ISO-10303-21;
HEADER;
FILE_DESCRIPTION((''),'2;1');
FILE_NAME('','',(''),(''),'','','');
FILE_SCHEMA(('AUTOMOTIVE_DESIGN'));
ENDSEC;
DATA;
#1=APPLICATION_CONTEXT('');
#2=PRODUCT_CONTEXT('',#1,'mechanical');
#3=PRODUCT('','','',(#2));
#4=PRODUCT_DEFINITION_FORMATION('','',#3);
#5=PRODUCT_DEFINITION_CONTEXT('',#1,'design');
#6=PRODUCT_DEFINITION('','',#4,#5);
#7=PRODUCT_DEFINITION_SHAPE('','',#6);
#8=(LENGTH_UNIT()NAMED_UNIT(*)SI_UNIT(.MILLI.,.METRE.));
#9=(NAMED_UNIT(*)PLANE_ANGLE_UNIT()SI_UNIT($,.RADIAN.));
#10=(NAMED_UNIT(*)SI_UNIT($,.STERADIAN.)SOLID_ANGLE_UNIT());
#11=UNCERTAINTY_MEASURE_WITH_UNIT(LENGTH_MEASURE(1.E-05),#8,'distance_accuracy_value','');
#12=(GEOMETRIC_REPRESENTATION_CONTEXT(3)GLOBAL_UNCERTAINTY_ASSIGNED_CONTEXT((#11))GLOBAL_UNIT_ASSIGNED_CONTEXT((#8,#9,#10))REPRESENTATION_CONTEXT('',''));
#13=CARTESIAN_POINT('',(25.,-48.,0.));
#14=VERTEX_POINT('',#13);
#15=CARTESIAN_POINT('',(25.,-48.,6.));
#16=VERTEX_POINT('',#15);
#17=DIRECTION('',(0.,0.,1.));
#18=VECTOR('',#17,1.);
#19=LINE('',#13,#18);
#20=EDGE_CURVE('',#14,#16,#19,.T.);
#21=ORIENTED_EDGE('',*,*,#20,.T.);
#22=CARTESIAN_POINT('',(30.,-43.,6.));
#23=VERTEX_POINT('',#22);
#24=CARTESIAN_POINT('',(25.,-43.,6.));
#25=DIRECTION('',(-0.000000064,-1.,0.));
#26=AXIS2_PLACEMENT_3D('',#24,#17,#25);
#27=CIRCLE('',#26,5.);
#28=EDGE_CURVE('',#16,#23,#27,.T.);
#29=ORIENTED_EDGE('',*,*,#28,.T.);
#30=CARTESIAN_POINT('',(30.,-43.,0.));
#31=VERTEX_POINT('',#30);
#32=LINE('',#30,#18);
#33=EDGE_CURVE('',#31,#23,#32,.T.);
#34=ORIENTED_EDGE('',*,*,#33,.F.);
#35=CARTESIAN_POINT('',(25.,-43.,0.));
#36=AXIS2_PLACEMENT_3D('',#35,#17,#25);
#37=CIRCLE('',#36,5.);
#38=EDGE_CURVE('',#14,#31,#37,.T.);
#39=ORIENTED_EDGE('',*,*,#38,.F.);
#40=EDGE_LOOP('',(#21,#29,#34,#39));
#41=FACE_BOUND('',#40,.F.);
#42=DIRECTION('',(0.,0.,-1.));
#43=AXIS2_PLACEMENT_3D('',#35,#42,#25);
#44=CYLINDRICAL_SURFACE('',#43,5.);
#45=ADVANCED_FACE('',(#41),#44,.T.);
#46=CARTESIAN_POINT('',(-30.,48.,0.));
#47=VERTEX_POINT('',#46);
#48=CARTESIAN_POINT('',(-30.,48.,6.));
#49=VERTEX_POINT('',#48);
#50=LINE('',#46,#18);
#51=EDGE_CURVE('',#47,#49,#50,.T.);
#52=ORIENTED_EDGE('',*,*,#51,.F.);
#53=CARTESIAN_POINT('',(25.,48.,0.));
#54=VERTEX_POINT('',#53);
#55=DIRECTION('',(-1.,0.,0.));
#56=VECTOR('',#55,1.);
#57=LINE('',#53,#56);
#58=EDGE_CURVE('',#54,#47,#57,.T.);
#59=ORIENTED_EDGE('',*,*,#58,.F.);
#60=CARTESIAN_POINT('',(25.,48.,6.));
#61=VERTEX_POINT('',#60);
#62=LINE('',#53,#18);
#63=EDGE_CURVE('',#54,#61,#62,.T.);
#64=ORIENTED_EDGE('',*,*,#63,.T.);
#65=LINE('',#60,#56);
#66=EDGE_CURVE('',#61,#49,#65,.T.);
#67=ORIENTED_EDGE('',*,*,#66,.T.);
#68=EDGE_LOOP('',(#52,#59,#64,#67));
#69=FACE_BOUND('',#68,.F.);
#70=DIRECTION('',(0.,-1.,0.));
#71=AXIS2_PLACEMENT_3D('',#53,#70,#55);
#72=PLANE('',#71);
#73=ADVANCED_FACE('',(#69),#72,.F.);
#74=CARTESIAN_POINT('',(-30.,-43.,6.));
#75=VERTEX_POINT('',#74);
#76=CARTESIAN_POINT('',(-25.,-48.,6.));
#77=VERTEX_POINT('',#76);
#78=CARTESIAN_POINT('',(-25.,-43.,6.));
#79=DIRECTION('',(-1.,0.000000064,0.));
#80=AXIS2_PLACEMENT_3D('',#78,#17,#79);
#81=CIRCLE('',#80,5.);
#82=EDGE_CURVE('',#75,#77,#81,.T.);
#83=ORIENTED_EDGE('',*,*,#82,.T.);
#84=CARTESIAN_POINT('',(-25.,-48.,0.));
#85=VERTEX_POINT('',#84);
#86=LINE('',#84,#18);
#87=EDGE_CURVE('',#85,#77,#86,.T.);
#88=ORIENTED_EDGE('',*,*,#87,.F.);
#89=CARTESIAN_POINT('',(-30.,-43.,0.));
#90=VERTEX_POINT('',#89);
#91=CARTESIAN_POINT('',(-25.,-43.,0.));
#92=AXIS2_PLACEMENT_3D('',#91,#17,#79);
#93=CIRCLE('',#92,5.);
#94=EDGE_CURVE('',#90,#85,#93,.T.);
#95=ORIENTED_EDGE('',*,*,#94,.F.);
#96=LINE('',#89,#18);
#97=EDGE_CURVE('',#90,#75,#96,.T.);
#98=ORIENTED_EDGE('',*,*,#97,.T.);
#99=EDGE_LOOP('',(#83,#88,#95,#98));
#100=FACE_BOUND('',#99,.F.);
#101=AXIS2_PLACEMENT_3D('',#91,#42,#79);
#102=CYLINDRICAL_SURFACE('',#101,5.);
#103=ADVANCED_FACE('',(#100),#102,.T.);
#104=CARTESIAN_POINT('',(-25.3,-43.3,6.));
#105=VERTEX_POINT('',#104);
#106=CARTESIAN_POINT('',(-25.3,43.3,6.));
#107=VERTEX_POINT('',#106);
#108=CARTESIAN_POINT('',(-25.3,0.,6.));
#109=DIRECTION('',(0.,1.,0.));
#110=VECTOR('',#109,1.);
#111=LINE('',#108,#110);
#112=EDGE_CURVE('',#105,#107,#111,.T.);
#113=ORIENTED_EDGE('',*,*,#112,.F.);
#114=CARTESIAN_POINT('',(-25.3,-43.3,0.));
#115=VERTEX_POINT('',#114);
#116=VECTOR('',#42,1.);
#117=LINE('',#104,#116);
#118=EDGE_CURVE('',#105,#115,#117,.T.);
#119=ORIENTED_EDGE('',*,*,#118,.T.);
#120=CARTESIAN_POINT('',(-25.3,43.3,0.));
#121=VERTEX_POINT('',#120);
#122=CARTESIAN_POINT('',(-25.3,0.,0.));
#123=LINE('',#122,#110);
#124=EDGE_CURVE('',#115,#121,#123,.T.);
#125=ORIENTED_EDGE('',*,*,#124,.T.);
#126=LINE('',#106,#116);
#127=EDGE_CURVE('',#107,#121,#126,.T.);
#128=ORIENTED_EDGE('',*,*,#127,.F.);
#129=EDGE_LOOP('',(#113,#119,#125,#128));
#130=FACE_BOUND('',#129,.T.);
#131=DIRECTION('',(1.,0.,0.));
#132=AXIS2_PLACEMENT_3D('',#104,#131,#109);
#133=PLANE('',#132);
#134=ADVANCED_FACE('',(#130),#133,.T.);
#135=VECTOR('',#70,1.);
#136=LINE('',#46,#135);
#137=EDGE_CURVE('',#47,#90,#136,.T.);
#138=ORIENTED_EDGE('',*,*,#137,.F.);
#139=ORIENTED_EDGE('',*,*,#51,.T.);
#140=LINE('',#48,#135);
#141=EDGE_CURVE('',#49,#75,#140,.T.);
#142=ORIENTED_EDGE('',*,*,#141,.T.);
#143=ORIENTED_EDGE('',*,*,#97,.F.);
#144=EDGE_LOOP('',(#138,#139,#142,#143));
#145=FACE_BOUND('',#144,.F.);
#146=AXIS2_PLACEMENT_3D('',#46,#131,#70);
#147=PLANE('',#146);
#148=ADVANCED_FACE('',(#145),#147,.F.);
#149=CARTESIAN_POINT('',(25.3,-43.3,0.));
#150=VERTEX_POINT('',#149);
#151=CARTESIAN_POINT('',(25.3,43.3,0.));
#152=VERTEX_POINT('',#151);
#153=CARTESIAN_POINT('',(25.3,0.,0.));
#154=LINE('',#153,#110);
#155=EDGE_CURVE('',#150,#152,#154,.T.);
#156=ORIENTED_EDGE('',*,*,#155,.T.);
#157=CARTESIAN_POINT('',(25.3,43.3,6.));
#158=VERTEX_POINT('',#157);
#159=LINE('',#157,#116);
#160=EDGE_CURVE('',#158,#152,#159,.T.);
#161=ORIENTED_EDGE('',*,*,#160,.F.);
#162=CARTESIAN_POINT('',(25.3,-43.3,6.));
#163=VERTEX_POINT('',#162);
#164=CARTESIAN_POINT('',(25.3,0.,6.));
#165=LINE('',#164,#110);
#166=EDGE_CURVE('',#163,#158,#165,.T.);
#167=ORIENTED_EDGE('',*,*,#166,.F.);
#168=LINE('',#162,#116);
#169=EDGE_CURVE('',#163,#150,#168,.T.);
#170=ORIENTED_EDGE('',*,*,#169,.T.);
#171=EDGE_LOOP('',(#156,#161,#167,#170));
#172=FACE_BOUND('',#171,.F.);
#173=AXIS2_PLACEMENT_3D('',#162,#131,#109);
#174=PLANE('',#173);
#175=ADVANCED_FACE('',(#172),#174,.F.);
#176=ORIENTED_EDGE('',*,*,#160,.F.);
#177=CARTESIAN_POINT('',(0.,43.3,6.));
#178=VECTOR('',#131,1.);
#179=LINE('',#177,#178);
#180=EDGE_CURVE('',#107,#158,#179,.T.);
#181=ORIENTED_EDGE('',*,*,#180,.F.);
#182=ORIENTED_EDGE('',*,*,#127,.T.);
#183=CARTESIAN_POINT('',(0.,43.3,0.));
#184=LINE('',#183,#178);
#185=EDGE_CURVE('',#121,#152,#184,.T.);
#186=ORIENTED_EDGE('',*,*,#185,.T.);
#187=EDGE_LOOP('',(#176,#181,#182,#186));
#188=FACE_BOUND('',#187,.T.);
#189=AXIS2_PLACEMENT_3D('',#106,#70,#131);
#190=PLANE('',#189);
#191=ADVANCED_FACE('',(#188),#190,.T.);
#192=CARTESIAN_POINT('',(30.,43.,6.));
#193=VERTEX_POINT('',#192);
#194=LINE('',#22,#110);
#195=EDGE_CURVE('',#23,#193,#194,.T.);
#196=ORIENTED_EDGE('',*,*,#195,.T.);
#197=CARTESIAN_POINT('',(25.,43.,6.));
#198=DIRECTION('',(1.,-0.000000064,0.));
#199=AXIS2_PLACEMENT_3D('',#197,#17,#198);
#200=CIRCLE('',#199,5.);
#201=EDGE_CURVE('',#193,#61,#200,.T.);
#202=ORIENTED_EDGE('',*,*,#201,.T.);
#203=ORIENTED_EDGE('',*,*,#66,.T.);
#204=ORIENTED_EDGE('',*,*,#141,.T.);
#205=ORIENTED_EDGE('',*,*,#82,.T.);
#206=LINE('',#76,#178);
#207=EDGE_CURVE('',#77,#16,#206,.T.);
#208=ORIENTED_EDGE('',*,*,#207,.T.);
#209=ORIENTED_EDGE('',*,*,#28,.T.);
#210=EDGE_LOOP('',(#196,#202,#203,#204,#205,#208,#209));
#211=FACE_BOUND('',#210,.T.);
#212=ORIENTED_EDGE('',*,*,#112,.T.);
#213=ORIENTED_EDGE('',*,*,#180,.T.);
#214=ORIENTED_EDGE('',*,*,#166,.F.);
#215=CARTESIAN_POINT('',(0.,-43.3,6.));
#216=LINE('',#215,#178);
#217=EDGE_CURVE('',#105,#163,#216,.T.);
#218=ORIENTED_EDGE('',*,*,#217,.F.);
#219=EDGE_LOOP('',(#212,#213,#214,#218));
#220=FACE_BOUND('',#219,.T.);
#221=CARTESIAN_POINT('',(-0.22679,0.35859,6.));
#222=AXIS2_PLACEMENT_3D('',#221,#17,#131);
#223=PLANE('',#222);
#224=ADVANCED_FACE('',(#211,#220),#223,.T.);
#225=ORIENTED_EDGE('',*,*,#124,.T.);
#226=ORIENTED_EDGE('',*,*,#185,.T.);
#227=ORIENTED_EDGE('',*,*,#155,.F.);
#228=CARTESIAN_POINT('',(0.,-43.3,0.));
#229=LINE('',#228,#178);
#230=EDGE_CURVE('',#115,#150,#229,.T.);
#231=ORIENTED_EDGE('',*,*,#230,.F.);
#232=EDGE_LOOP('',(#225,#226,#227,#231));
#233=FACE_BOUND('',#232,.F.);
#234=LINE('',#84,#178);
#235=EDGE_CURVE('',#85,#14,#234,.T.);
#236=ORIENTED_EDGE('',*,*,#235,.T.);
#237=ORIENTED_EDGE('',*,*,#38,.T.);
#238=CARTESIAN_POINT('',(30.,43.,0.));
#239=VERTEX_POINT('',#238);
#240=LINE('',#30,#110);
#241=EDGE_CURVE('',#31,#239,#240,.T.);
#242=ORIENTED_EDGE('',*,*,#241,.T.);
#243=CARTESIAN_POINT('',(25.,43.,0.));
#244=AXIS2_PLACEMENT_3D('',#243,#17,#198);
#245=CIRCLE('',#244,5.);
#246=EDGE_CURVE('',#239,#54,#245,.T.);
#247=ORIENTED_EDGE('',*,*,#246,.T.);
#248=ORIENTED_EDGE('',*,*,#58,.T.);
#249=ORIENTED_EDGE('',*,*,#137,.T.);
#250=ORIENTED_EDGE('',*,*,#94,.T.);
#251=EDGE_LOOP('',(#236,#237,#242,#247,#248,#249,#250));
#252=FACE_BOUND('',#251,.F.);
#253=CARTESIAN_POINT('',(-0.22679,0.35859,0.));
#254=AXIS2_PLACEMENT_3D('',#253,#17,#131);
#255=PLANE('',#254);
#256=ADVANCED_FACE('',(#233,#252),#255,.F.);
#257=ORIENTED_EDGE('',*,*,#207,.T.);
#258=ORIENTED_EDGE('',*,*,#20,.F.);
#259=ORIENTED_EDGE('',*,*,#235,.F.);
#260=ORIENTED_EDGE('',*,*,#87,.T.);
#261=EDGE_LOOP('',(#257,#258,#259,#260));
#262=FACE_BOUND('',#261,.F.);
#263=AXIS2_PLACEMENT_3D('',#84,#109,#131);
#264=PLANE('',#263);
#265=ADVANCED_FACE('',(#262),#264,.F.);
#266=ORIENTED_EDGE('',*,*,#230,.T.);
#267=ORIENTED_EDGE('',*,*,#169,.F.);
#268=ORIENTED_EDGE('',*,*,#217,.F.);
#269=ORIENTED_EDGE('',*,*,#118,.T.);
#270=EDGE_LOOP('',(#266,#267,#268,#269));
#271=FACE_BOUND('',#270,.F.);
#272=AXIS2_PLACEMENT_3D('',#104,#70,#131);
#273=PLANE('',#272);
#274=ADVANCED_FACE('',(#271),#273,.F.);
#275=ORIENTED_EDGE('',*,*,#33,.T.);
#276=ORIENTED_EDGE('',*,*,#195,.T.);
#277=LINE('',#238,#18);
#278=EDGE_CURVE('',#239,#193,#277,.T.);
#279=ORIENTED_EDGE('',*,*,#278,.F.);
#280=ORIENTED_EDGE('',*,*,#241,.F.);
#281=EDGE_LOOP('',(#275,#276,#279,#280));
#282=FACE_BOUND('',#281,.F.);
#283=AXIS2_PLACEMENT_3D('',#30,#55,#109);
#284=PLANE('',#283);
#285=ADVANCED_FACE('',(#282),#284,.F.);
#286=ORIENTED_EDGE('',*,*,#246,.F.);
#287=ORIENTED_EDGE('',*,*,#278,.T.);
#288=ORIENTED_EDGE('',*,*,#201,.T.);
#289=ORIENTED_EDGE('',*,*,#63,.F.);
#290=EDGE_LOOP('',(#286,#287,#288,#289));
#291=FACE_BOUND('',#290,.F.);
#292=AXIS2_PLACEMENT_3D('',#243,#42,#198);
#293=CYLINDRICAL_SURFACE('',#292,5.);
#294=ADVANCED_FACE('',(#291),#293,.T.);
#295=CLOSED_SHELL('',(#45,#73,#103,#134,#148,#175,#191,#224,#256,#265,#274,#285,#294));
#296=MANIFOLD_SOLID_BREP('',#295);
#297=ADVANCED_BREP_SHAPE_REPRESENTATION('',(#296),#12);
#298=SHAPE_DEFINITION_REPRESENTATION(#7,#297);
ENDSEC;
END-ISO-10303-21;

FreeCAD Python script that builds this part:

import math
import FreeCAD as App
import Part
import Sketcher
from FreeCAD import Vector

doc = App.newDocument("Part")
params = doc.addObject("Spreadsheet::Sheet", "Params")
for row, (alias, value) in enumerate([
    ("sketch1_diameter", "3 mm"),
    ("sketch1_radius", "5 mm"),
    ("sketch1_width", "50 mm"),
    ("sketch1_height", "86 mm"),
    ("pad1_length", "6 mm"),
    ("sketch2_width", "50.6 mm"),
    ("sketch2_height", "86.6 mm"),
    ("pocket1_length", "6 mm"),
], start=1):
    params.set(f"A{row}", alias)
    params.set(f"B{row}", "=" + value)
    params.setAlias(f"B{row}", alias)

body = doc.addObject("PartDesign::Body", "Body")

# Sketch on XY plane
sketch1 = body.newObject("Sketcher::SketchObject", "Sketch")
sketch1.AttachmentSupport = (doc.getObject("XY_Plane"), [""])
sketch1.MapMode = "FlatFace"
sketch1.addGeometry([
    Part.LineSegment(Vector(-25, -48, 0), Vector(25, -48, 0)),  # 0
    Part.ArcOfCircle(Part.Circle(Vector(25, -43, 0), Vector(0, 0, 1), 5), math.radians(-90.000004), math.radians(0.000004)),  # 1
    Part.LineSegment(Vector(30, -43, 0), Vector(30, 43, 0)),  # 2
    Part.ArcOfCircle(Part.Circle(Vector(25, 43, 0), Vector(0, 0, 1), 5), math.radians(-0.000004), math.radians(90.000004)),  # 3
    Part.LineSegment(Vector(25, 48, 0), Vector(-30, 48, 0)),  # 4
    Part.LineSegment(Vector(-30, 48, 0), Vector(-30, -43, 0)),  # 5
    Part.ArcOfCircle(Part.Circle(Vector(-25, -43, 0), Vector(0, 0, 1), 5), math.radians(179.999996), math.radians(270.000004)),  # 6
    Part.Circle(Vector(-22, -36.08, 0), Vector(0, 0, 1), 1.5),  # 7
    Part.Circle(Vector(22, -36.08, 0), Vector(0, 0, 1), 1.5),  # 8
    Part.Circle(Vector(-22, 40, 0), Vector(0, 0, 1), 1.5),  # 9
    Part.Circle(Vector(22, 40, 0), Vector(0, 0, 1), 1.5),  # 10
], False)
sketch1.addConstraint([
    Sketcher.Constraint("Tangent", 0, 2, 1, 1),
    Sketcher.Constraint("Tangent", 1, 2, 2, 1),
    Sketcher.Constraint("Tangent", 2, 2, 3, 1),
    Sketcher.Constraint("Tangent", 3, 2, 4, 1),
    Sketcher.Constraint("Coincident", 4, 2, 5, 1),
    Sketcher.Constraint("Tangent", 5, 2, 6, 1),
    Sketcher.Constraint("Tangent", 6, 2, 0, 1),
    Sketcher.Constraint("Horizontal", 0),
    Sketcher.Constraint("Vertical", 2),
    Sketcher.Constraint("Horizontal", 4),
    Sketcher.Constraint("Vertical", 5),
    Sketcher.Constraint("Equal", 1, 3),
    Sketcher.Constraint("Equal", 3, 6),
    Sketcher.Constraint("Equal", 7, 8),
    Sketcher.Constraint("Equal", 8, 9),
    Sketcher.Constraint("Equal", 9, 10),
    Sketcher.Constraint("Symmetric", 3, 3, 6, 3, -1, 1),
    Sketcher.Constraint("Symmetric", 7, 3, 8, 3, -2),
    Sketcher.Constraint("Symmetric", 9, 3, 10, 3, -2),
    Sketcher.Constraint("Vertical", 7, 3, 9, 3),
    Sketcher.Constraint("Diameter", 7, 3.0),
    Sketcher.Constraint("Radius", 1, 5.0),
    Sketcher.Constraint("DistanceX", 0, 1, 0, 2, 50.0),
    Sketcher.Constraint("DistanceY", 2, 1, 2, 2, 86.0),
    Sketcher.Constraint("DistanceX", 7, 3, -1, 1, 22.0),
    Sketcher.Constraint("DistanceY", -1, 1, 9, 3, 40.0),
    Sketcher.Constraint("DistanceY", 7, 3, -1, 1, 36.08),
])
sketch1.setExpression("Constraints[20]", "Params.sketch1_diameter")
sketch1.setExpression("Constraints[21]", "Params.sketch1_radius")
sketch1.setExpression("Constraints[22]", "Params.sketch1_width")
sketch1.setExpression("Constraints[23]", "Params.sketch1_height")
pad1 = body.newObject("PartDesign::Pad", "Pad")
pad1.Profile = sketch1
pad1.setExpression("Length", "Params.pad1_length")

# Sketch on XY plane
sketch2 = body.newObject("Sketcher::SketchObject", "Sketch001")
sketch2.AttachmentSupport = (doc.getObject("XY_Plane"), [""])
sketch2.MapMode = "FlatFace"
sketch2.AttachmentOffset = App.Placement(Vector(0, 0, 6), App.Rotation())
sketch2.addGeometry([
    Part.LineSegment(Vector(-25.3, 43.3, 0), Vector(-25.3, -43.3, 0)),
    Part.LineSegment(Vector(-25.3, -43.3, 0), Vector(25.3, -43.3, 0)),
    Part.LineSegment(Vector(25.3, -43.3, 0), Vector(25.3, 43.3, 0)),
    Part.LineSegment(Vector(25.3, 43.3, 0), Vector(-25.3, 43.3, 0)),
], False)
sketch2.addConstraint([
    Sketcher.Constraint("Coincident", 0, 2, 1, 1),
    Sketcher.Constraint("Coincident", 1, 2, 2, 1),
    Sketcher.Constraint("Coincident", 2, 2, 3, 1),
    Sketcher.Constraint("Coincident", 3, 2, 0, 1),
    Sketcher.Constraint("Vertical", 0),
    Sketcher.Constraint("Horizontal", 1),
    Sketcher.Constraint("Vertical", 2),
    Sketcher.Constraint("Horizontal", 3),
    Sketcher.Constraint("Symmetric", 0, 2, 2, 2, -1, 1),
    Sketcher.Constraint("DistanceX", 1, 1, 1, 2, 50.6),
    Sketcher.Constraint("DistanceY", 0, 2, 0, 1, 86.6),
])
sketch2.setExpression("Constraints[9]", "Params.sketch2_width")
sketch2.setExpression("Constraints[10]", "Params.sketch2_height")
pocket1 = body.newObject("PartDesign::Pocket", "Pocket")
pocket1.Profile = sketch2
pocket1.setExpression("Length", "Params.pocket1_length")

doc.recompute()
